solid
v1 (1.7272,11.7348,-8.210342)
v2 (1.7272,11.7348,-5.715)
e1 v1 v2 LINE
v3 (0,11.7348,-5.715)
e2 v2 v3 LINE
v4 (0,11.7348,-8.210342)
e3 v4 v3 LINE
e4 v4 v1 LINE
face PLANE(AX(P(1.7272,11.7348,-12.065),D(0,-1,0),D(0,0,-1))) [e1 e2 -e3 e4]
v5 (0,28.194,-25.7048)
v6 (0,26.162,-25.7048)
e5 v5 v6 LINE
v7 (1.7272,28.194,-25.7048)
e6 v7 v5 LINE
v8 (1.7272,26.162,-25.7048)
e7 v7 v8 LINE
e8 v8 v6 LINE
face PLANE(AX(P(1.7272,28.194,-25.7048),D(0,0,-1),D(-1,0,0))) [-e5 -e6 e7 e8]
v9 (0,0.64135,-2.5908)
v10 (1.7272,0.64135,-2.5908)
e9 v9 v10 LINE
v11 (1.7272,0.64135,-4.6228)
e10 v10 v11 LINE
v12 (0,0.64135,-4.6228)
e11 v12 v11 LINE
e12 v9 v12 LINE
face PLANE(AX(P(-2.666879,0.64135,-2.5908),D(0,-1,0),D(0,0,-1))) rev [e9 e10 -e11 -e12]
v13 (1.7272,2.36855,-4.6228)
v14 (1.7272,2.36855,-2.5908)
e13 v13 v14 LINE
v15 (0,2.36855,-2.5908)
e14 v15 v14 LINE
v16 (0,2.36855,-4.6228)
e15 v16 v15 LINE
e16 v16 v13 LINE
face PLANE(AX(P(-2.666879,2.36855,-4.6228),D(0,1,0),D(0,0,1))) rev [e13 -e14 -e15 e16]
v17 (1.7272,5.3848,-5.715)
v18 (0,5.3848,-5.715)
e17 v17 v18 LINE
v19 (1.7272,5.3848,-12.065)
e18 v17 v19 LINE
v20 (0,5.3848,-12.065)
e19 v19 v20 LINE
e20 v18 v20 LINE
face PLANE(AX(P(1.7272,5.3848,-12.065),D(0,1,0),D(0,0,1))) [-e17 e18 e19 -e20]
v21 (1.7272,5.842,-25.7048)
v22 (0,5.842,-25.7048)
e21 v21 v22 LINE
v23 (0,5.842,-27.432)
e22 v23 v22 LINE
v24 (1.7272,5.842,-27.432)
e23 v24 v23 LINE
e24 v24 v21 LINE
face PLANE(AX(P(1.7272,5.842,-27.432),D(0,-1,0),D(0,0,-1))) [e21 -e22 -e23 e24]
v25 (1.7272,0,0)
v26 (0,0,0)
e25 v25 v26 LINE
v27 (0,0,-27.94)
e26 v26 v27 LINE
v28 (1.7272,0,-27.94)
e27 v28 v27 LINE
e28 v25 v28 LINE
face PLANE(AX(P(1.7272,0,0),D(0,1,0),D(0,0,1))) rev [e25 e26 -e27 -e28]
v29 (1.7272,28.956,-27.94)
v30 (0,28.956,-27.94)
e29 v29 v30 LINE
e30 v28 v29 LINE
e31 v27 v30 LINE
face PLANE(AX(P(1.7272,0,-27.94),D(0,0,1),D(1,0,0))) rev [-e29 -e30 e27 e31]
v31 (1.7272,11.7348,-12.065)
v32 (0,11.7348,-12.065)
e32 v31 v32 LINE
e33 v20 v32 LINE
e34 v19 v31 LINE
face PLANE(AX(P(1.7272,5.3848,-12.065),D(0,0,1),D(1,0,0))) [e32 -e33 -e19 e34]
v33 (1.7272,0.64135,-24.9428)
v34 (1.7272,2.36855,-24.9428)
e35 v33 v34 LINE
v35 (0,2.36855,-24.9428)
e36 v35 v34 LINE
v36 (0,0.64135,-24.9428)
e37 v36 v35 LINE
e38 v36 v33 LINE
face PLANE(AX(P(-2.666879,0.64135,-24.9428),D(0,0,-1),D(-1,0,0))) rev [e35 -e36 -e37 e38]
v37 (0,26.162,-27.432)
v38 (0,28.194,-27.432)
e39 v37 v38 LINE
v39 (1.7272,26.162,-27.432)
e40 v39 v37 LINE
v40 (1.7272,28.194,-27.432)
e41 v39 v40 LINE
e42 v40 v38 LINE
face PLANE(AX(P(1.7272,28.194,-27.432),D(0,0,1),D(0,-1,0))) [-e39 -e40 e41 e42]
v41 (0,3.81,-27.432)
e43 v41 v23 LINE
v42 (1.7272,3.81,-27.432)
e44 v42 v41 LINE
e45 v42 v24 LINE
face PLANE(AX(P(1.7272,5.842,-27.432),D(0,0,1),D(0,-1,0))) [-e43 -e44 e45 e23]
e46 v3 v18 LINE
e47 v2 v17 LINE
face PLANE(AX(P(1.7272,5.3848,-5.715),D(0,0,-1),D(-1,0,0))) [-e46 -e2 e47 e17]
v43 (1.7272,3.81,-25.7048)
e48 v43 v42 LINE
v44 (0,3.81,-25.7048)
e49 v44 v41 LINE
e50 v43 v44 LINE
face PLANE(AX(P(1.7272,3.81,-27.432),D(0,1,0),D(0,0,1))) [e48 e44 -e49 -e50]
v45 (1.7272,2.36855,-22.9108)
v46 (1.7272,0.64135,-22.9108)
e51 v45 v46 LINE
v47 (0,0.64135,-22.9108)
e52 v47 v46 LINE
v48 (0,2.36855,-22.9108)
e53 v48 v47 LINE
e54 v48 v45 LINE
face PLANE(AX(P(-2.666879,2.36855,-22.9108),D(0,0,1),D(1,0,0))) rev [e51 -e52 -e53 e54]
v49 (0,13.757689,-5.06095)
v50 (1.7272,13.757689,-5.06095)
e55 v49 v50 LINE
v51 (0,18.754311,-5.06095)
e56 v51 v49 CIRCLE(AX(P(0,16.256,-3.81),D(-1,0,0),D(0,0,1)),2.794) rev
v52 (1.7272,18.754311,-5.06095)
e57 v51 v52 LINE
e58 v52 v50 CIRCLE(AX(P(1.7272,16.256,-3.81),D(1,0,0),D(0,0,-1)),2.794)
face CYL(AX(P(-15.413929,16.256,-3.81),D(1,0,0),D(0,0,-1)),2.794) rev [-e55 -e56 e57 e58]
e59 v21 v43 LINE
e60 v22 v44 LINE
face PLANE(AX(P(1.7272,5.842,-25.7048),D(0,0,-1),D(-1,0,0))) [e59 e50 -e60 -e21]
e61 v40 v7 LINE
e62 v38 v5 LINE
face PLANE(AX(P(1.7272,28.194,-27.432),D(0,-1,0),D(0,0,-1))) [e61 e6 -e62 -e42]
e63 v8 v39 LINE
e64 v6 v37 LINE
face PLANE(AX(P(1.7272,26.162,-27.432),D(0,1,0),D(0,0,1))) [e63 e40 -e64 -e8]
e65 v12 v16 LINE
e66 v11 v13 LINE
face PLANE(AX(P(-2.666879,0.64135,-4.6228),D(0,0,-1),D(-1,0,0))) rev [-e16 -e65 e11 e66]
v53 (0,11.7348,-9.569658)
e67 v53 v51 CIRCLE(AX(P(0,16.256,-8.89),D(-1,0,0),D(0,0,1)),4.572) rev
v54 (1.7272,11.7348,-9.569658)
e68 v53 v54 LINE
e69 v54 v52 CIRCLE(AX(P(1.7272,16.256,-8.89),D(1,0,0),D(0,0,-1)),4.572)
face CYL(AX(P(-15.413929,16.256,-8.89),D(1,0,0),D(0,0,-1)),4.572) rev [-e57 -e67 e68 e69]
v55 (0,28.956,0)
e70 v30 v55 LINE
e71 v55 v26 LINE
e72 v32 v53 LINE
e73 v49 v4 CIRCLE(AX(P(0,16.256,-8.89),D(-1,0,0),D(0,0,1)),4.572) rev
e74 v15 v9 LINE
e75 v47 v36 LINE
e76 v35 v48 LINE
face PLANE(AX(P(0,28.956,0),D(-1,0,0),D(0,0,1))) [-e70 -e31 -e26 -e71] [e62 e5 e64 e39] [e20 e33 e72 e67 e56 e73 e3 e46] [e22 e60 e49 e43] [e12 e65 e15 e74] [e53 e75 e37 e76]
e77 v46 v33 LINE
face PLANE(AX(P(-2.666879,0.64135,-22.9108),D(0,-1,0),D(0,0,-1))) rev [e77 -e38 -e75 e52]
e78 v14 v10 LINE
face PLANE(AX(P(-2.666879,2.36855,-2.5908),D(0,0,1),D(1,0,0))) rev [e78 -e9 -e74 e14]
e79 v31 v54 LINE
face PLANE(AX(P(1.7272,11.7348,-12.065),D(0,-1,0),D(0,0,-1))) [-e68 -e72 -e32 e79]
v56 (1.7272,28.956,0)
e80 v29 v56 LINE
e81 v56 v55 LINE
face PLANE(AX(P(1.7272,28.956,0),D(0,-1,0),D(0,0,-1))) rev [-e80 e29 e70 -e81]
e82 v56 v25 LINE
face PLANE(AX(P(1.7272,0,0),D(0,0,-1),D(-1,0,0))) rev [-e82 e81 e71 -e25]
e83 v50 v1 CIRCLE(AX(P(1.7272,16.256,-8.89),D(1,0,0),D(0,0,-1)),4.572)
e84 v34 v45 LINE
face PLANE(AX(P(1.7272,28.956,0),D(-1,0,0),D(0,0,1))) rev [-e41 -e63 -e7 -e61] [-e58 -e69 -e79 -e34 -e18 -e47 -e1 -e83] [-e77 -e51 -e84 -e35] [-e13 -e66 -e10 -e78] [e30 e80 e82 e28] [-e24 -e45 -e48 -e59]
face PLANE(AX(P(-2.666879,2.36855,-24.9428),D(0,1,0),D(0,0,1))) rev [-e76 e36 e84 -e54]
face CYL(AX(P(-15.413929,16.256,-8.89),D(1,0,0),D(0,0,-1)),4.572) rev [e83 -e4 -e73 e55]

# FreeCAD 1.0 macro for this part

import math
import FreeCAD as App
import Part
import Sketcher
from FreeCAD import Vector
Q = App.Units.Quantity


def add_polygon(sketch, points):
    """Adds a closed chain of lines whose ends are joined by coincident constraints."""
    first, n = sketch.GeometryCount, len(points)
    for a, b in zip(points, points[1:] + points[:1]):
        sketch.addGeometry(Part.LineSegment(App.Vector(*a, 0), App.Vector(*b, 0)), False)
    for i in range(n):
        sketch.addConstraint(Sketcher.Constraint("Coincident", first + i, 2, first + (i + 1) % n, 1))

doc = App.newDocument("Part")
body = doc.addObject("PartDesign::Body", "Body")

# Sketch on YZ plane
sketch1 = body.newObject("Sketcher::SketchObject", "Sketch")
sketch1.AttachmentSupport = (doc.getObject("YZ_Plane"), [""])
sketch1.MapMode = "FlatFace"
add_polygon(sketch1, [(28.956, 0), (0, 0), (0, -27.94), (28.956, -27.94)])  # lines 0-3
add_polygon(sketch1, [(5.3848, -12.065), (5.3848, -5.715), (11.7348, -5.715), (11.7348, -12.065)])  # lines 4-7
add_polygon(sketch1, [(3.81, -27.432), (3.81, -25.7048), (5.842, -25.7048), (5.842, -27.432)])  # lines 8-11
add_polygon(sketch1, [(26.162, -27.432), (26.162, -25.7048), (28.194, -25.7048), (28.194, -27.432)])  # lines 12-15
sketch1.addConstraint(Sketcher.Constraint("Horizontal", 0))
sketch1.addConstraint(Sketcher.Constraint("Vertical", 1))
sketch1.addConstraint(Sketcher.Constraint("Horizontal", 2))
sketch1.addConstraint(Sketcher.Constraint("Vertical", 3))
sketch1.addConstraint(Sketcher.Constraint("Vertical", 4))
sketch1.addConstraint(Sketcher.Constraint("Horizontal", 5))
sketch1.addConstraint(Sketcher.Constraint("Vertical", 6))
sketch1.addConstraint(Sketcher.Constraint("Horizontal", 7))
sketch1.addConstraint(Sketcher.Constraint("Vertical", 8))
sketch1.addConstraint(Sketcher.Constraint("Horizontal", 9))
sketch1.addConstraint(Sketcher.Constraint("Vertical", 10))
sketch1.addConstraint(Sketcher.Constraint("Horizontal", 11))
sketch1.addConstraint(Sketcher.Constraint("Vertical", 12))
sketch1.addConstraint(Sketcher.Constraint("Horizontal", 13))
sketch1.addConstraint(Sketcher.Constraint("Vertical", 14))
sketch1.addConstraint(Sketcher.Constraint("Horizontal", 15))
sketch1.addConstraint(Sketcher.Constraint("Coincident", 0, 2, -1, 1))
sketch1.addConstraint(Sketcher.Constraint("Horizontal", 9, 2, 12, 2))
sketch1.addConstraint(Sketcher.Constraint("Horizontal", 11, 2, 14, 2))
sketch1.addConstraint(Sketcher.Constraint("Equal", 11, 13))
sketch1.addConstraint(Sketcher.Constraint("Equal", 7, 4))
sketch1.addConstraint(Sketcher.Constraint("DistanceY", 1, 2, 1, 1, Q("1.1 in")))
sketch1.addConstraint(Sketcher.Constraint("DistanceX", 0, 2, 0, 1, Q("1.14 in")))
sketch1.addConstraint(Sketcher.Constraint("DistanceX", 5, 1, 5, 2, Q("0.25 in")))
sketch1.addConstraint(Sketcher.Constraint("DistanceX", 9, 1, 9, 2, Q("0.08 in")))
sketch1.addConstraint(Sketcher.Constraint("DistanceX", 9, 2, 12, 2, Q("0.8 in")))
sketch1.addConstraint(Sketcher.Constraint("DistanceY", 8, 1, 8, 2, Q("0.068 in")))
sketch1.addConstraint(Sketcher.Constraint("DistanceX", -1, 1, 8, 2, Q("0.15 in")))
sketch1.addConstraint(Sketcher.Constraint("DistanceY", 10, 2, -1, 1, Q("1.08 in")))
sketch1.addConstraint(Sketcher.Constraint("DistanceX", -1, 1, 4, 2, Q("0.212 in")))
sketch1.addConstraint(Sketcher.Constraint("DistanceY", 4, 2, -1, 1, Q("0.225 in")))
pad1 = body.newObject("PartDesign::Pad", "Pad")
pad1.Profile = sketch1
pad1.Length = Q("0.068 in")

# Sketch on YZ plane
sketch2 = body.newObject("Sketcher::SketchObject", "Sketch001")
sketch2.AttachmentSupport = (doc.getObject("YZ_Plane"), [""])
sketch2.MapMode = "FlatFace"
sketch2.AttachmentOffset = App.Placement(Vector(0, 0, 0.068 * 25.4), App.Rotation())
add_polygon(sketch2, [(2.36855, -2.5908), (0.64135, -2.5908), (0.64135, -4.6228), (2.36855, -4.6228)])  # lines 0-3
add_polygon(sketch2, [(2.36855, -22.9108), (0.64135, -22.9108), (0.64135, -24.9428), (2.36855, -24.9428)])  # lines 4-7
sketch2.addConstraint(Sketcher.Constraint("Horizontal", 0))
sketch2.addConstraint(Sketcher.Constraint("Vertical", 1))
sketch2.addConstraint(Sketcher.Constraint("Horizontal", 2))
sketch2.addConstraint(Sketcher.Constraint("Vertical", 3))
sketch2.addConstraint(Sketcher.Constraint("Horizontal", 4))
sketch2.addConstraint(Sketcher.Constraint("Vertical", 5))
sketch2.addConstraint(Sketcher.Constraint("Horizontal", 6))
sketch2.addConstraint(Sketcher.Constraint("Vertical", 7))
sketch2.addConstraint(Sketcher.Constraint("Vertical", 1, 2, 4, 2))
sketch2.addConstraint(Sketcher.Constraint("Vertical", 3, 2, 6, 2))
sketch2.addConstraint(Sketcher.Constraint("Equal", 3, 5))
sketch2.addConstraint(Sketcher.Constraint("DistanceY", 1, 2, 1, 1, Q("0.08 in")))
sketch2.addConstraint(Sketcher.Constraint("DistanceY", 4, 2, 0, 2, Q("0.8 in")))
sketch2.addConstraint(Sketcher.Constraint("DistanceX", 0, 2, 0, 1, Q("0.068 in")))
sketch2.addConstraint(Sketcher.Constraint("DistanceY", 0, 2, -1, 1, Q("0.102 in")))
sketch2.addConstraint(Sketcher.Constraint("DistanceX", -1, 1, 0, 2, 0.64135))
pocket1 = body.newObject("PartDesign::Pocket", "Pocket")
pocket1.Profile = sketch2
pocket1.Length = Q("0.068 in")

# Sketch on YZ plane
sketch3 = body.newObject("Sketcher::SketchObject", "Sketch002")
sketch3.AttachmentSupport = (doc.getObject("YZ_Plane"), [""])
sketch3.MapMode = "FlatFace"
sketch3.AttachmentOffset = App.Placement(Vector(0, 0, 0.068 * 25.4), App.Rotation())
sketch3.addGeometry(Part.ArcOfCircle(Part.Circle(Vector(16.256, -8.89, 0), Vector(0, 0, 1), 4.572), math.radians(-90), math.radians(56.87706)), False)
sketch3.addGeometry(Part.ArcOfCircle(Part.Circle(Vector(16.256, -3.81, 0), Vector(0, 0, 1), 2.794), math.radians(-26.597961), math.radians(206.597961)), False)
sketch3.addGeometry(Part.ArcOfCircle(Part.Circle(Vector(16.256, -8.89, 0), Vector(0, 0, 1), 4.572), math.radians(123.12294), math.radians(171.450921)), False)
sketch3.addGeometry(Part.ArcOfCircle(Part.Circle(Vector(16.256, -8.89, 0), Vector(0, 0, 1), 4.572), math.radians(171.450921), math.radians(188.549079)), False)
sketch3.addGeometry(Part.ArcOfCircle(Part.Circle(Vector(16.256, -8.89, 0), Vector(0, 0, 1), 4.572), math.radians(-171.450921), math.radians(-90)), False)
sketch3.addConstraint(Sketcher.Constraint("Coincident", 0, 2, 1, 1))
sketch3.addConstraint(Sketcher.Constraint("Coincident", 1, 2, 2, 1))
sketch3.addConstraint(Sketcher.Constraint("Tangent", 2, 2, 3, 1))
sketch3.addConstraint(Sketcher.Constraint("Tangent", 3, 2, 4, 1))
sketch3.addConstraint(Sketcher.Constraint("Tangent", 4, 2, 0, 1))
sketch3.addConstraint(Sketcher.Constraint("Coincident", 2, 3, 0, 3))
sketch3.addConstraint(Sketcher.Constraint("Equal", 0, 2))
sketch3.addConstraint(Sketcher.Constraint("Horizontal", 0, 2, 1, 2))
sketch3.addConstraint(Sketcher.Constraint("Vertical", 2, 2, 3, 2))
sketch3.addConstraint(Sketcher.Constraint("Vertical", 3, 3, 4, 2))
sketch3.addConstraint(Sketcher.Constraint("Radius", 0, Q("0.18 in")))
sketch3.addConstraint(Sketcher.Constraint("Radius", 1, Q("0.11 in")))
sketch3.addConstraint(Sketcher.Constraint("DistanceY", 0, 3, 1, 3, Q("0.2 in")))
sketch3.addConstraint(Sketcher.Constraint("DistanceX", -1, 1, 0, 3, Q("0.64 in")))
sketch3.addConstraint(Sketcher.Constraint("DistanceY", 0, 3, -1, 1, Q("0.35 in")))
sketch3.addConstraint(Sketcher.Constraint("DistanceX", -1, 1, 2, 2, Q("0.462 in")))
pocket2 = body.newObject("PartDesign::Pocket", "Pocket001")
pocket2.Profile = sketch3
pocket2.Length = Q("0.068 in")

doc.recompute()
